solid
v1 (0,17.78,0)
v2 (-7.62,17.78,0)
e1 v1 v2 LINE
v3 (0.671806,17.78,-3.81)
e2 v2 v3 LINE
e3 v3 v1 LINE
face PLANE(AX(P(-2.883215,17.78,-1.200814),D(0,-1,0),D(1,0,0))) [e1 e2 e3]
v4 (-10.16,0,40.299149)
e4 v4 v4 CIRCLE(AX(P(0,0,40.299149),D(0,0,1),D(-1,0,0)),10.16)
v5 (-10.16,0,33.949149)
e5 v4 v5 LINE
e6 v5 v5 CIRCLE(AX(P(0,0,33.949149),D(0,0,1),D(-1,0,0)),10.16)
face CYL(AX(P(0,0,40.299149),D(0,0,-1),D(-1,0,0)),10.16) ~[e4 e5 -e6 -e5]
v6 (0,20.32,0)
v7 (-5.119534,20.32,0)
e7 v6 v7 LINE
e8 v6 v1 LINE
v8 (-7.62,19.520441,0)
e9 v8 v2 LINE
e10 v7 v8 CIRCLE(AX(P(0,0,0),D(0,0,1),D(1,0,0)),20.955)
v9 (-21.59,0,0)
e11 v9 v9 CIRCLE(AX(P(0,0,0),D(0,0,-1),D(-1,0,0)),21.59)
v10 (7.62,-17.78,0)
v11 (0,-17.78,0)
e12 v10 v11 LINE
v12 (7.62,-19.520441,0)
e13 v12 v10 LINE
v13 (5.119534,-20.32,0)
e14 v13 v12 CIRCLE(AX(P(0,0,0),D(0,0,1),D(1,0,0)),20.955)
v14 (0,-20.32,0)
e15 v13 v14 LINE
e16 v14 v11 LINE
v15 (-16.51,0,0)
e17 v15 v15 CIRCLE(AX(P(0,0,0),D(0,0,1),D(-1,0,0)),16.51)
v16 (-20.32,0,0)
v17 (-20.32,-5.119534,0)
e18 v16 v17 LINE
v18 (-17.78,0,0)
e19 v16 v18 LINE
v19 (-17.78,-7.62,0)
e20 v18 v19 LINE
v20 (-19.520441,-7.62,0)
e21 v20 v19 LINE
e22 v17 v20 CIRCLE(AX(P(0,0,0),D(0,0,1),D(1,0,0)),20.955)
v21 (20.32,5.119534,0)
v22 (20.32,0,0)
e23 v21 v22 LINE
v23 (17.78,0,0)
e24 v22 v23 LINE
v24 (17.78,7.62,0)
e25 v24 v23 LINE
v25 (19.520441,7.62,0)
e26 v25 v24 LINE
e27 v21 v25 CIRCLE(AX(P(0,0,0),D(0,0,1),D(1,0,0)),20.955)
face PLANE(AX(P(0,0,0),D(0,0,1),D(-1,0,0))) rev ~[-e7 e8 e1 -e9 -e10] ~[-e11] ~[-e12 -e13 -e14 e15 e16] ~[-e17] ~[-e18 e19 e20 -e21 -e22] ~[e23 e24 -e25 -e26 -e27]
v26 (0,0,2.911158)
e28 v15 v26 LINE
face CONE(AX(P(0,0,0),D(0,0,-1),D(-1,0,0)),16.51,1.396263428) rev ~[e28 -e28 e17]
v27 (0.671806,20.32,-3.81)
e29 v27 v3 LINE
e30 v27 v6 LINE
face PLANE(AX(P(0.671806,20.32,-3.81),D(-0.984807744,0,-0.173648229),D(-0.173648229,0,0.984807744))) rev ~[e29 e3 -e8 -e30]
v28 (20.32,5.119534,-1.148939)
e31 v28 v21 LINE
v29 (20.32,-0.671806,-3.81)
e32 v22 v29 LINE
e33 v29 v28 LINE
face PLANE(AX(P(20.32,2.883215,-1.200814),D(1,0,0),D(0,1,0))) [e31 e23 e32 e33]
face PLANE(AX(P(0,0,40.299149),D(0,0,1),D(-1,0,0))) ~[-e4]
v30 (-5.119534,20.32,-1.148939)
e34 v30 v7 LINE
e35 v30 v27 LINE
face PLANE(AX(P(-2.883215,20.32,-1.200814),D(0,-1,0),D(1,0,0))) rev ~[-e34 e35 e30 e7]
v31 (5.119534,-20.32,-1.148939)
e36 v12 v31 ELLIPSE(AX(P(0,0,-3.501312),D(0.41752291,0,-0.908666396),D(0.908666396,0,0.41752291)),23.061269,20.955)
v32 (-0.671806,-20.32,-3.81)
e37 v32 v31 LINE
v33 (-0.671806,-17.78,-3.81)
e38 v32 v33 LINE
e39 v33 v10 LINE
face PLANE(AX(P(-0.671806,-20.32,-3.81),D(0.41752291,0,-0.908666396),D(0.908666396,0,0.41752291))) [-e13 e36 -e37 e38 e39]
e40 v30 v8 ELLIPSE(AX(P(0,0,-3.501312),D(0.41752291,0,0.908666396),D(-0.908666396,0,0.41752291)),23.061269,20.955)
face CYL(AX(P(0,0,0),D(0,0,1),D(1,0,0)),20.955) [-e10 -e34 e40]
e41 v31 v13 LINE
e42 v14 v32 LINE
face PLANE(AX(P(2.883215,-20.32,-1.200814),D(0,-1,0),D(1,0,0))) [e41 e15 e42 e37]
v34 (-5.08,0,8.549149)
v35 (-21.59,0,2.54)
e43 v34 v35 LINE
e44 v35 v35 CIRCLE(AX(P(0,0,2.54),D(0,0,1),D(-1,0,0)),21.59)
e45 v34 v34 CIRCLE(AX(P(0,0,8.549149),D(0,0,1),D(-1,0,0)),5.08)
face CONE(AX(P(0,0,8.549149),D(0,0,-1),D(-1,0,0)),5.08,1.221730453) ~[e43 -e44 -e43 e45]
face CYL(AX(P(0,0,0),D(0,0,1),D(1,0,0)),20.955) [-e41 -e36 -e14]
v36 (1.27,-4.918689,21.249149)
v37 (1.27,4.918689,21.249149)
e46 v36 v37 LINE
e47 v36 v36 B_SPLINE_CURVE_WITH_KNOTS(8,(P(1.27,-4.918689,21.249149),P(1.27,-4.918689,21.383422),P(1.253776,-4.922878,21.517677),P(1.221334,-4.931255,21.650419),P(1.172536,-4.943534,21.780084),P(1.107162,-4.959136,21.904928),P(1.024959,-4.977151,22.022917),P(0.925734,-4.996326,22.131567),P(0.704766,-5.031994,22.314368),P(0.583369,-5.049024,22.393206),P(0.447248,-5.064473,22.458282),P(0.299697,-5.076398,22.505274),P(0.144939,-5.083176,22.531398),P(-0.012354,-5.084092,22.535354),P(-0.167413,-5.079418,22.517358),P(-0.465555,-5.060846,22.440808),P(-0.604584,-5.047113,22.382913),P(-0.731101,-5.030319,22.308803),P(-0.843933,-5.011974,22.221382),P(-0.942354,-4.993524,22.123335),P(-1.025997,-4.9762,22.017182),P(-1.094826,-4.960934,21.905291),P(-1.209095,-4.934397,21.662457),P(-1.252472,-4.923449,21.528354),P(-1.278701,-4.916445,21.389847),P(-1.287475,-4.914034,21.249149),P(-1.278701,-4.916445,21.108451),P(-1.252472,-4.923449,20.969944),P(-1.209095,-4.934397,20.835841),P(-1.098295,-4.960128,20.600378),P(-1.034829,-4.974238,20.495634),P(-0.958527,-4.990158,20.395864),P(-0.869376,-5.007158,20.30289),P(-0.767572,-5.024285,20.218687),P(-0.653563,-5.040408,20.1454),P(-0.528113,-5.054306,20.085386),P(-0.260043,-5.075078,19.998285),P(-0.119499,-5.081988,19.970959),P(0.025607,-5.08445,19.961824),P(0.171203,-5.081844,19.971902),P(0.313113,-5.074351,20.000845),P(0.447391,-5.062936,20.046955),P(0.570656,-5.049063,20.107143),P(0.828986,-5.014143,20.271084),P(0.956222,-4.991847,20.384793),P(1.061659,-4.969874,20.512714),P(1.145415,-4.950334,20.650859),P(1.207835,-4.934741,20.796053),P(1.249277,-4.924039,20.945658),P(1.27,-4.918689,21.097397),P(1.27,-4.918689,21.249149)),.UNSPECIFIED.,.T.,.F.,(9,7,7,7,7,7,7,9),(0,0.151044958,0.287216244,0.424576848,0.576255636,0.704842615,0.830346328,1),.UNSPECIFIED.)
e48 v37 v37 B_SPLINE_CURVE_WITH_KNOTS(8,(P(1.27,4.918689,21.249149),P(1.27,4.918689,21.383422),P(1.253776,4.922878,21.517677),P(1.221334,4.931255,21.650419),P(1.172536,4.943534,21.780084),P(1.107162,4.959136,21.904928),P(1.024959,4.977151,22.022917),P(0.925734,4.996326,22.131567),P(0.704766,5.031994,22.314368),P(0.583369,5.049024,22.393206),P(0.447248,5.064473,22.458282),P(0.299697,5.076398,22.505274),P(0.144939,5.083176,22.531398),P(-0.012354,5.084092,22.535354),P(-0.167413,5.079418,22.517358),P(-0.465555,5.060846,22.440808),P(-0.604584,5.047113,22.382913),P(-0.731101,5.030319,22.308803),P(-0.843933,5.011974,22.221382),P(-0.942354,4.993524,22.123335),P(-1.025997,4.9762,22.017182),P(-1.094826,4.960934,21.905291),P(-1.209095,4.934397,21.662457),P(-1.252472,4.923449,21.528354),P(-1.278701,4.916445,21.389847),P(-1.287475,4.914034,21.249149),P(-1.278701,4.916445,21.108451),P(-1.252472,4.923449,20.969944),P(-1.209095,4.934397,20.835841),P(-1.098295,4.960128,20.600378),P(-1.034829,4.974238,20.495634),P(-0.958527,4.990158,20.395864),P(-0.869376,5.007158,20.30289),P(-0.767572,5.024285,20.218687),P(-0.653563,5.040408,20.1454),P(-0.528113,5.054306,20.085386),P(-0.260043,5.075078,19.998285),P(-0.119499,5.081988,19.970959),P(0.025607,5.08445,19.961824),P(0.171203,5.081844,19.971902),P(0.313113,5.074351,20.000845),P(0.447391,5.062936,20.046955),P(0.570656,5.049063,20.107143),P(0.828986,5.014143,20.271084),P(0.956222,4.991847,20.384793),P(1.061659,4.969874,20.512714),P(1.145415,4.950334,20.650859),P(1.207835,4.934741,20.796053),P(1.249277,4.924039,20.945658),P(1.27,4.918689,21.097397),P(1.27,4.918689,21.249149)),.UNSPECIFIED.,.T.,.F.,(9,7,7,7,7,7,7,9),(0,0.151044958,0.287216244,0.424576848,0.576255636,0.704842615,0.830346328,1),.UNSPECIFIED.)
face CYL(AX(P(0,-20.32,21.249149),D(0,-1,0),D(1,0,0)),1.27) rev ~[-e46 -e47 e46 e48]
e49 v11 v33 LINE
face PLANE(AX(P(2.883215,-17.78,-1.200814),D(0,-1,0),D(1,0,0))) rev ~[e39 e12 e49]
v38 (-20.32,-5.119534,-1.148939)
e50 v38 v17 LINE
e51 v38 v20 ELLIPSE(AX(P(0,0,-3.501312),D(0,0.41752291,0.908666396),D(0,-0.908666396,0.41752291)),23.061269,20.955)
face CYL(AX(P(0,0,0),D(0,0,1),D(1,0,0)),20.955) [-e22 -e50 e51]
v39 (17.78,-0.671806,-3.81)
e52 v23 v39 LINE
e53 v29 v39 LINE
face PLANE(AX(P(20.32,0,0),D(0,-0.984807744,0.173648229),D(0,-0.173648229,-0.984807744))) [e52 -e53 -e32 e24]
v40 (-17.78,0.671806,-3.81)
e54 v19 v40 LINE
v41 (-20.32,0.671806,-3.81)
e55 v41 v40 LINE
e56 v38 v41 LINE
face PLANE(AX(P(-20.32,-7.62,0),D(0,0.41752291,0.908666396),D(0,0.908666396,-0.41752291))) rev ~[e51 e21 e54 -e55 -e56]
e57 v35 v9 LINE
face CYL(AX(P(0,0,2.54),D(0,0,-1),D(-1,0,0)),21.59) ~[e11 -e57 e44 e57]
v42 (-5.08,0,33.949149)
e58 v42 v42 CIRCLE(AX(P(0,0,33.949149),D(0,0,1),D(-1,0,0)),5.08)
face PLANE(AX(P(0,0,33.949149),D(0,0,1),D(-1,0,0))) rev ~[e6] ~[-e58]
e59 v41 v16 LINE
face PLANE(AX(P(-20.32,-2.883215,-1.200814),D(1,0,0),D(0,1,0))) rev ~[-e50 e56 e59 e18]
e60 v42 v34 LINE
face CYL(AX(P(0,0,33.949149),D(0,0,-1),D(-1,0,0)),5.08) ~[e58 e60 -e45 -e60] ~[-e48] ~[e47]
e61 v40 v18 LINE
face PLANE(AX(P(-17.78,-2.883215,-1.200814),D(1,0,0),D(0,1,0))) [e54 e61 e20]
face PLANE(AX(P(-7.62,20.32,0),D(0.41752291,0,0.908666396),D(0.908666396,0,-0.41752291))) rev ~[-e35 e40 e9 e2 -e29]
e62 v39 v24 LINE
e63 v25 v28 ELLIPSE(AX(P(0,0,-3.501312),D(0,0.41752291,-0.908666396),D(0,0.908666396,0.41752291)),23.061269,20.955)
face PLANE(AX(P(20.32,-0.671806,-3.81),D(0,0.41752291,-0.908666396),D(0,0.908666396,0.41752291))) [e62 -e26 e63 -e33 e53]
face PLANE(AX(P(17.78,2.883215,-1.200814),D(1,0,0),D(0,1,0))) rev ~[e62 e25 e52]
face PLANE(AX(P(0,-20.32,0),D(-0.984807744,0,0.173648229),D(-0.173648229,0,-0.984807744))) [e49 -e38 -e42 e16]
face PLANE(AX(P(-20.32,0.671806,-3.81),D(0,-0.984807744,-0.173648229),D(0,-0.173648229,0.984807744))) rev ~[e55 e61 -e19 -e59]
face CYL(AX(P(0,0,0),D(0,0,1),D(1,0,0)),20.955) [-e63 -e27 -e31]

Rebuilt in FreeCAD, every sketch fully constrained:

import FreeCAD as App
import Part
import Sketcher
from FreeCAD import Vector
Q = App.Units.Quantity

doc = App.newDocument("Part")
body = doc.addObject("PartDesign::Body", "Body")

# Sketch on YZ plane
sketch1 = body.newObject("Sketcher::SketchObject", "Sketch")
sketch1.AttachmentSupport = (doc.getObject("YZ_Plane"), [""])
sketch1.MapMode = "FlatFace"
sketch1.AttachmentOffset = App.Placement(Vector(0, 0, 0.8 * 25.4), App.Rotation())
sketch1.addGeometry([
    Part.LineSegment(Vector(7.6, 0, 0), Vector(0, 0, 0)),
    Part.LineSegment(Vector(0, 0, 0), Vector(-0.7, -3.8, 0)),
    Part.LineSegment(Vector(-0.7, -3.8, 0), Vector(7.6, 0, 0)),
], False)
sketch1.addConstraint([
    Sketcher.Constraint("Coincident", 0, 2, 1, 1),
    Sketcher.Constraint("Coincident", 1, 2, 2, 1),
    Sketcher.Constraint("Coincident", 2, 2, 0, 1),
    Sketcher.Constraint("Horizontal", 0),
    Sketcher.Constraint("Coincident", 0, 2, -1, 1),
    Sketcher.Constraint("DistanceX", 0, 2, 0, 1, Q("0.3 in")),
    Sketcher.Constraint("Angle", 1, Q("-100.000003 deg")),
    Sketcher.Constraint("DistanceY", 1, 2, -1, 1, Q("0.15 in")),
])
pad1 = body.newObject("PartDesign::Pad", "Pad")
pad1.Profile = sketch1
pad1.Length = Q("0.1 in")
pad1.Reversed = True
body2 = doc.addObject("PartDesign::Body", "Body001")

# Sketch on YZ plane
sketch2 = body2.newObject("Sketcher::SketchObject", "Sketch001")
sketch2.AttachmentSupport = (doc.getObject("YZ_Plane001"), [""])
sketch2.MapMode = "FlatFace"
sketch2.AttachmentOffset = App.Placement(Vector(0, 0, -0.8 * 25.4), App.Rotation())
sketch2.addGeometry([
    Part.LineSegment(Vector(0.7, -3.8, 0), Vector(0, 0, 0)),
    Part.LineSegment(Vector(0, 0, 0), Vector(-7.6, 0, 0)),
    Part.LineSegment(Vector(-7.6, 0, 0), Vector(0.7, -3.8, 0)),
], False)
sketch2.addConstraint([
    Sketcher.Constraint("Coincident", 0, 2, 1, 1),
    Sketcher.Constraint("Coincident", 1, 2, 2, 1),
    Sketcher.Constraint("Coincident", 2, 2, 0, 1),
    Sketcher.Constraint("Horizontal", 1),
    Sketcher.Constraint("Coincident", 0, 2, -1, 1),
    Sketcher.Constraint("DistanceX", 1, 2, 1, 1, Q("0.3 in")),
    Sketcher.Constraint("Angle", 0, Q("100.000003 deg")),
    Sketcher.Constraint("DistanceY", 2, 2, -1, 1, Q("0.15 in")),
])
pad2 = body2.newObject("PartDesign::Pad", "Pad001")
pad2.Profile = sketch2
pad2.Length = Q("0.1 in")
body3 = doc.addObject("PartDesign::Body", "Body002")

# Sketch on XZ plane
sketch3 = body3.newObject("Sketcher::SketchObject", "Sketch002")
sketch3.AttachmentSupport = (doc.getObject("XZ_Plane002"), [""])
sketch3.MapMode = "FlatFace"
sketch3.AttachmentOffset = App.Placement(Vector(0, 0, -0.8 * 25.4), App.Rotation())
sketch3.addGeometry([
    Part.LineSegment(Vector(0.7, -3.8, 0), Vector(0, 0, 0)),
    Part.LineSegment(Vector(0, 0, 0), Vector(-7.6, 0, 0)),
    Part.LineSegment(Vector(-7.6, 0, 0), Vector(0.7, -3.8, 0)),
], False)
sketch3.addConstraint([
    Sketcher.Constraint("Coincident", 0, 2, 1, 1),
    Sketcher.Constraint("Coincident", 1, 2, 2, 1),
    Sketcher.Constraint("Coincident", 2, 2, 0, 1),
    Sketcher.Constraint("Horizontal", 1),
    Sketcher.Constraint("Coincident", 0, 2, -1, 1),
    Sketcher.Constraint("DistanceX", 1, 2, 1, 1, Q("0.3 in")),
    Sketcher.Constraint("Angle", 0, Q("100.000003 deg")),
    Sketcher.Constraint("DistanceY", 2, 2, -1, 1, Q("0.15 in")),
])
pad3 = body3.newObject("PartDesign::Pad", "Pad002")
pad3.Profile = sketch3
pad3.Length = Q("0.1 in")
body4 = doc.addObject("PartDesign::Body", "Body003")

# Sketch on XZ plane
sketch4 = body4.newObject("Sketcher::SketchObject", "Sketch003")
sketch4.AttachmentSupport = (doc.getObject("XZ_Plane003"), [""])
sketch4.MapMode = "FlatFace"
sketch4.AttachmentOffset = App.Placement(Vector(0, 0, 0.8 * 25.4), App.Rotation())
sketch4.addGeometry([
    Part.LineSegment(Vector(7.6, 0, 0), Vector(0, 0, 0)),
    Part.LineSegment(Vector(0, 0, 0), Vector(-0.7, -3.8, 0)),
    Part.LineSegment(Vector(-0.7, -3.8, 0), Vector(7.6, 0, 0)),
], False)
sketch4.addConstraint([
    Sketcher.Constraint("Coincident", 0, 2, 1, 1),
    Sketcher.Constraint("Coincident", 1, 2, 2, 1),
    Sketcher.Constraint("Coincident", 2, 2, 0, 1),
    Sketcher.Constraint("Horizontal", 0),
    Sketcher.Constraint("Coincident", 0, 2, -1, 1),
    Sketcher.Constraint("DistanceX", 0, 2, 0, 1, Q("0.3 in")),
    Sketcher.Constraint("Angle", 1, Q("-100.000003 deg")),
    Sketcher.Constraint("DistanceY", 1, 2, -1, 1, Q("0.15 in")),
])
pad4 = body4.newObject("PartDesign::Pad", "Pad003")
pad4.Profile = sketch4
pad4.Length = Q("0.1 in")
pad4.Reversed = True
body.AllowCompound = True
doc.recompute()

boolean = body.newObject("PartDesign::Boolean", "Boolean")
boolean.Type = "Fuse"
boolean.addObjects([body2])
doc.recompute()

boolean2 = body.newObject("PartDesign::Boolean", "Boolean001")
boolean2.Type = "Fuse"
boolean2.addObjects([body3])
doc.recompute()

boolean3 = body.newObject("PartDesign::Boolean", "Boolean002")
boolean3.Type = "Fuse"
boolean3.addObjects([body4])

# Sketch on XZ plane
sketch5 = body.newObject("Sketcher::SketchObject", "Sketch004")
sketch5.AttachmentSupport = (doc.getObject("XZ_Plane"), [""])
sketch5.MapMode = "FlatFace"
sketch5.addGeometry([
    Part.LineSegment(Vector(-21.6, 0, 0), Vector(-16.5, 0, 0)),  # 0
    Part.LineSegment(Vector(-16.5, 0, 0), Vector(0, 2.9, 0)),  # 1
    Part.LineSegment(Vector(0, 2.9, 0), Vector(0, 40.3, 0)),  # 2
    Part.LineSegment(Vector(0, 40.3, 0), Vector(-10.2, 40.3, 0)),  # 3
    Part.LineSegment(Vector(-10.2, 40.3, 0), Vector(-10.2, 33.9, 0)),  # 4
    Part.LineSegment(Vector(-10.2, 33.9, 0), Vector(-5.1, 33.9, 0)),  # 5
    Part.LineSegment(Vector(-5.1, 33.9, 0), Vector(-5.1, 8.5, 0)),  # 6
    Part.LineSegment(Vector(-5.1, 8.5, 0), Vector(-21.6, 2.5, 0)),  # 7
    Part.LineSegment(Vector(-21.6, 2.5, 0), Vector(-21.6, 0, 0)),  # 8
], False)
sketch5.addConstraint([
    Sketcher.Constraint("Coincident", 0, 2, 1, 1),
    Sketcher.Constraint("Coincident", 1, 2, 2, 1),
    Sketcher.Constraint("Coincident", 2, 2, 3, 1),
    Sketcher.Constraint("Coincident", 3, 2, 4, 1),
    Sketcher.Constraint("Coincident", 4, 2, 5, 1),
    Sketcher.Constraint("Coincident", 5, 2, 6, 1),
    Sketcher.Constraint("Coincident", 6, 2, 7, 1),
    Sketcher.Constraint("Coincident", 7, 2, 8, 1),
    Sketcher.Constraint("Coincident", 8, 2, 0, 1),
    Sketcher.Constraint("Horizontal", 0),
    Sketcher.Constraint("Vertical", 2),
    Sketcher.Constraint("Horizontal", 3),
    Sketcher.Constraint("Vertical", 4),
    Sketcher.Constraint("Horizontal", 5),
    Sketcher.Constraint("Vertical", 6),
    Sketcher.Constraint("Vertical", 8),
    Sketcher.Constraint("PointOnObject", 0, 2, -1),
    Sketcher.Constraint("PointOnObject", 1, 2, -2),
    Sketcher.Constraint("Equal", 0, 5),
    Sketcher.Constraint("DistanceY", 6, 2, 6, 1, Q("1 in")),
    Sketcher.Constraint("DistanceX", 0, 1, 0, 2, Q("0.2 in")),
    Sketcher.Constraint("DistanceX", 3, 2, 3, 1, Q("0.4 in")),
    Sketcher.Constraint("DistanceY", 8, 2, 8, 1, Q("0.1 in")),
    Sketcher.Constraint("Angle", 1, Q("9.999998 deg")),
    Sketcher.Constraint("Angle", 7, Q("-159.999999 deg")),
    Sketcher.Constraint("DistanceY", 4, 2, 4, 1, Q("0.25 in")),
    Sketcher.Constraint("DistanceX", 0, 2, -1, 1, Q("0.65 in")),
])
revolution = body.newObject("PartDesign::Revolution", "Revolution")
revolution.Profile = sketch5
revolution.ReferenceAxis = (sketch5, ["V_Axis"])
revolution.Angle = 360

# Sketch on XZ plane
sketch6 = body.newObject("Sketcher::SketchObject", "Sketch005")
sketch6.AttachmentSupport = (doc.getObject("XZ_Plane"), [""])
sketch6.MapMode = "FlatFace"
sketch6.AttachmentOffset = App.Placement(Vector(0, 0, 0.8 * 25.4), App.Rotation())
sketch6.addGeometry(Part.Circle(Vector(0, 21.2, 0), Vector(0, 0, 1), 1.3), False)
sketch6.addConstraint([
    Sketcher.Constraint("PointOnObject", 0, 3, -2),
    Sketcher.Constraint("Diameter", 0, Q("0.1 in")),
    Sketcher.Constraint("DistanceY", -1, 1, 0, 3, 21.249149),
])
pocket1 = body.newObject("PartDesign::Pocket", "Pocket")
pocket1.Profile = sketch6
pocket1.Length = Q("1.184 in")

# Sketch on XY plane
sketch7 = body.newObject("Sketcher::SketchObject", "Sketch006")
sketch7.AttachmentSupport = (doc.getObject("XY_Plane"), [""])
sketch7.MapMode = "FlatFace"
sketch7.addGeometry([
    Part.Circle(Vector(0, 0, 0), Vector(0, 0, 1), 42),
    Part.Circle(Vector(0, 0, 0), Vector(0, 0, 1), 21),
], False)
sketch7.addConstraint([
    Sketcher.Constraint("Coincident", 0, 3, -1, 1),
    Sketcher.Constraint("Coincident", 1, 3, -1, 1),
    Sketcher.Constraint("Diameter", 1, Q("1.65 in")),
    Sketcher.Constraint("Diameter", 0, 84.826442),
])
pocket2 = body.newObject("PartDesign::Pocket", "Pocket001")
pocket2.Profile = sketch7
pocket2.Length = Q("1 in")

doc.recompute()
